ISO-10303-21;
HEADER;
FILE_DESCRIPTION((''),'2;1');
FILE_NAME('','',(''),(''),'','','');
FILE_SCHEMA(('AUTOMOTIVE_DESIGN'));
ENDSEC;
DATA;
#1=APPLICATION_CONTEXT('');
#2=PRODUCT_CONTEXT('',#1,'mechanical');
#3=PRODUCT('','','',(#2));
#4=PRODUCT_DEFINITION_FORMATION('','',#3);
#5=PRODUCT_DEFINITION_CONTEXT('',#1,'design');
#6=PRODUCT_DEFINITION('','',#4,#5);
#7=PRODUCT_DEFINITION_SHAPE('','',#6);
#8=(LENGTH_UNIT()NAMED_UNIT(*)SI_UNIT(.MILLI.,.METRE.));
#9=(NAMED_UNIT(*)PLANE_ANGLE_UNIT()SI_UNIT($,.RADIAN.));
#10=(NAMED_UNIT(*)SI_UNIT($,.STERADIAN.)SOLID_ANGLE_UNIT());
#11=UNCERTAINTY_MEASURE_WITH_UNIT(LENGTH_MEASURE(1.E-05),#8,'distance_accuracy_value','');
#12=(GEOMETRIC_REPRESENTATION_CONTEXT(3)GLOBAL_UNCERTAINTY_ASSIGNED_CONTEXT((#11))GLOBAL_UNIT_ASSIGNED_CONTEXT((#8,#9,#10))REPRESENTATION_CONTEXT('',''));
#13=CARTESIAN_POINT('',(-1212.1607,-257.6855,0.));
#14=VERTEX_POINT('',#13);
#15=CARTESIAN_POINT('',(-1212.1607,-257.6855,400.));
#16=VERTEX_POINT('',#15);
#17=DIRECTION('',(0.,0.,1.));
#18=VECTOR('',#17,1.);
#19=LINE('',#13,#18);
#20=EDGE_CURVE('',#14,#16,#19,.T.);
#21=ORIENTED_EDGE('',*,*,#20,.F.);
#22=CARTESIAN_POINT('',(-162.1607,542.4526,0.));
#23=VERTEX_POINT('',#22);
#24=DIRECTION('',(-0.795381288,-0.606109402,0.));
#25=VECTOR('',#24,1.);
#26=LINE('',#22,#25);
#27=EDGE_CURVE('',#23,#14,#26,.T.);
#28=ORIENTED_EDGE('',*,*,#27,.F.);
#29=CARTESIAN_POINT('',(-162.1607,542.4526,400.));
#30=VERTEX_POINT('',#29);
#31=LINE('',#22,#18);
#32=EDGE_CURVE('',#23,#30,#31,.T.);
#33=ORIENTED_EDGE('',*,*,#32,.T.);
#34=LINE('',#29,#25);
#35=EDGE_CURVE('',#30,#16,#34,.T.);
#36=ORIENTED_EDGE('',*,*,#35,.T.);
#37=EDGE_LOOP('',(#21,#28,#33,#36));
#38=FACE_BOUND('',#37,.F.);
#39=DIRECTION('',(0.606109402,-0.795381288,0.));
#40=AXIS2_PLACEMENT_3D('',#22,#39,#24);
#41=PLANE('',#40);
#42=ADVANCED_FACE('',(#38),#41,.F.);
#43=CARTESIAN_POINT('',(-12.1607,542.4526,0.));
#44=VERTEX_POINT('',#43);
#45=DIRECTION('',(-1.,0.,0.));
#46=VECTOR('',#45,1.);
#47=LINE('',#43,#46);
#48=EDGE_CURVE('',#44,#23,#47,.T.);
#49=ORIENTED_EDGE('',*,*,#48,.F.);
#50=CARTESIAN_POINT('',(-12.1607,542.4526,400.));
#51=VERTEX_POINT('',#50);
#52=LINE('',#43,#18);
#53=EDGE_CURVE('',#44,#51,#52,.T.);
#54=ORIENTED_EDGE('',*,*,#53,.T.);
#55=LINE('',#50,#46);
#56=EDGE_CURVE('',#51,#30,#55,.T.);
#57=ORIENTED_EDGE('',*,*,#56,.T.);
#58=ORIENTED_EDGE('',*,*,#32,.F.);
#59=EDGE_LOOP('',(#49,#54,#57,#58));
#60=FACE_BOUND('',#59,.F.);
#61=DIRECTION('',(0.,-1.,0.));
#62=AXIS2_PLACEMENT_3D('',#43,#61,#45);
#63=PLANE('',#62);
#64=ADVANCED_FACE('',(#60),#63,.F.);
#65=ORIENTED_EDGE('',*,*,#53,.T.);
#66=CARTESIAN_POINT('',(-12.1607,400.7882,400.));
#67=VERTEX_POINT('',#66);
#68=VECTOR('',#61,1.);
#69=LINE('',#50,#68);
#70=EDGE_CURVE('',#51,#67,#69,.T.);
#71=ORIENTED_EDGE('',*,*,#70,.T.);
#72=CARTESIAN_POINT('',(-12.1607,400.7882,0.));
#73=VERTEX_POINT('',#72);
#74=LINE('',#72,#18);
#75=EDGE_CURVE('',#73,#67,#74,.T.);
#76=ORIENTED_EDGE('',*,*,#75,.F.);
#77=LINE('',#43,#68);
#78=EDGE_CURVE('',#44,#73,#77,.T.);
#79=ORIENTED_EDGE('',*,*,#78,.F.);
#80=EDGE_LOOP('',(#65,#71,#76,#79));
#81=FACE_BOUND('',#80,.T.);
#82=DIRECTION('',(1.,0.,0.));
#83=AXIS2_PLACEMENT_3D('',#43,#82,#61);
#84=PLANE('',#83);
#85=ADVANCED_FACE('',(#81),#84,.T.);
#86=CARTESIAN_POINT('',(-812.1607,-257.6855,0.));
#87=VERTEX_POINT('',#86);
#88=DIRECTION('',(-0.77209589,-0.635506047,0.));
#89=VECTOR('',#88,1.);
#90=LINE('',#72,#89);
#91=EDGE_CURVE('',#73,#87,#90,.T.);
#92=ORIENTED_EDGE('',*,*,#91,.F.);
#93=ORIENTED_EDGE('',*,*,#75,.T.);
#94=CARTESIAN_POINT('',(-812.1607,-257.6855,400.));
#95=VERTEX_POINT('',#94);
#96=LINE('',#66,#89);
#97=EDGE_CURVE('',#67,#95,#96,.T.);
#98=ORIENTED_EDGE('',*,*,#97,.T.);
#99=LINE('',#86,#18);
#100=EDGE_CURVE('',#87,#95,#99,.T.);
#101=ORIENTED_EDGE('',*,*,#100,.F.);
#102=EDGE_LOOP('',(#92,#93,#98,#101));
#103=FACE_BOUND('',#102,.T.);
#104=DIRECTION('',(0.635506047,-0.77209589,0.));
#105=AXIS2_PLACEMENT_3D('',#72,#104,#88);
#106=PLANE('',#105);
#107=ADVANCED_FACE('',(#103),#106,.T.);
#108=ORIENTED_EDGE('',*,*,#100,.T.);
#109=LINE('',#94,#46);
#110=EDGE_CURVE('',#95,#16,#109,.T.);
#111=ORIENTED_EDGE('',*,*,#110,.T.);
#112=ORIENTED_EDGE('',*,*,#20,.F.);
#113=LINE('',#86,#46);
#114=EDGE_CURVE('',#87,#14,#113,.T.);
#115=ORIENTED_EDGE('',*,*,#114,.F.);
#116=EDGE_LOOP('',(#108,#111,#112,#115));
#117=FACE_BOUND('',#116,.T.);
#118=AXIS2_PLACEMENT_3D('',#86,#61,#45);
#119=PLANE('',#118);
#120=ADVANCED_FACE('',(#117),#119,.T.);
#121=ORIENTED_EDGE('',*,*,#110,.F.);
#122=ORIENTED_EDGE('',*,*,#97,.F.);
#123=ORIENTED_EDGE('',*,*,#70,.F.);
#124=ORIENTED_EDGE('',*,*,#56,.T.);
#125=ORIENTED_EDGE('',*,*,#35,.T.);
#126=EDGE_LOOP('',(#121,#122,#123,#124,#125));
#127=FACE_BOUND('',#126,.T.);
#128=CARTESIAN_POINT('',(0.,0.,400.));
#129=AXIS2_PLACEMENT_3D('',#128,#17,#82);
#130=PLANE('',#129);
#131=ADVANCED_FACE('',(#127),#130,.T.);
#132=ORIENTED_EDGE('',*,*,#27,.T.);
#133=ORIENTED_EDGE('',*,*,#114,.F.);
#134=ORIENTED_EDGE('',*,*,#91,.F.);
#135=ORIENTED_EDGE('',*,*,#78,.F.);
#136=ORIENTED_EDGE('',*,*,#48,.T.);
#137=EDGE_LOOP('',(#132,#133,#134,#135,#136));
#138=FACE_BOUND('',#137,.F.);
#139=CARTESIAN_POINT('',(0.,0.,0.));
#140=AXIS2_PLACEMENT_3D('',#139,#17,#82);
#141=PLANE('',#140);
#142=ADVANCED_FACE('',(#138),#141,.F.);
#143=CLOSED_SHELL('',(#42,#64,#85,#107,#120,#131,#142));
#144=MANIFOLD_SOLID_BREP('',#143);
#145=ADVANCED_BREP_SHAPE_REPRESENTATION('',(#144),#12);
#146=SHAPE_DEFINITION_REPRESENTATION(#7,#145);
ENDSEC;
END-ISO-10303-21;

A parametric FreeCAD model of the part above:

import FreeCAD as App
import Part
import Sketcher

V = App.Vector

doc = App.newDocument("Part")
body = doc.addObject("PartDesign::Body", "Body")

# Sketch on XY plane
sketch1 = body.newObject("Sketcher::SketchObject", "Sketch")
sketch1.AttachmentSupport = (doc.getObject("XY_Plane"), [""])
sketch1.MapMode = "FlatFace"
sketch1.addGeometry([
    Part.LineSegment(V(-12.1607, 400.7882, 0), V(-12.1607, 542.4526, 0)),  # 0
    Part.LineSegment(V(-12.1607, 542.4526, 0), V(-162.1607, 542.4526, 0)),  # 1
    Part.LineSegment(V(-162.1607, 542.4526, 0), V(-1212.1607, -257.6855, 0)),  # 2
    Part.LineSegment(V(-1212.1607, -257.6855, 0), V(-812.1607, -257.6855, 0)),  # 3
    Part.LineSegment(V(-812.1607, -257.6855, 0), V(-12.1607, 400.7882, 0)),  # 4
], False)
sketch1.addConstraint([
    Sketcher.Constraint("Coincident", 0, 2, 1, 1),
    Sketcher.Constraint("Coincident", 1, 2, 2, 1),
    Sketcher.Constraint("Coincident", 2, 2, 3, 1),
    Sketcher.Constraint("Coincident", 3, 2, 4, 1),
    Sketcher.Constraint("Coincident", 4, 2, 0, 1),
    Sketcher.Constraint("Vertical", 0),
    Sketcher.Constraint("Horizontal", 1),
    Sketcher.Constraint("Horizontal", 3),
    Sketcher.Constraint("DistanceX", 1, 2, 1, 1, 150.0),
    Sketcher.Constraint("DistanceX", 3, 1, 3, 2, 400.0),
    Sketcher.Constraint("DistanceX", 2, 2, 1, 2, 1050.0),
    Sketcher.Constraint("DistanceY", 0, 1, 0, 2, 141.6644),
    Sketcher.Constraint("DistanceY", 2, 2, 1, 2, 800.138),
    Sketcher.Constraint("DistanceX", 0, 2, -1, 1, 12.1607),
    Sketcher.Constraint("DistanceY", -1, 1, 0, 2, 542.4526),
])
pad1 = body.newObject("PartDesign::Pad", "Pad")
pad1.Profile = sketch1
pad1.Length = 400

doc.recompute()
